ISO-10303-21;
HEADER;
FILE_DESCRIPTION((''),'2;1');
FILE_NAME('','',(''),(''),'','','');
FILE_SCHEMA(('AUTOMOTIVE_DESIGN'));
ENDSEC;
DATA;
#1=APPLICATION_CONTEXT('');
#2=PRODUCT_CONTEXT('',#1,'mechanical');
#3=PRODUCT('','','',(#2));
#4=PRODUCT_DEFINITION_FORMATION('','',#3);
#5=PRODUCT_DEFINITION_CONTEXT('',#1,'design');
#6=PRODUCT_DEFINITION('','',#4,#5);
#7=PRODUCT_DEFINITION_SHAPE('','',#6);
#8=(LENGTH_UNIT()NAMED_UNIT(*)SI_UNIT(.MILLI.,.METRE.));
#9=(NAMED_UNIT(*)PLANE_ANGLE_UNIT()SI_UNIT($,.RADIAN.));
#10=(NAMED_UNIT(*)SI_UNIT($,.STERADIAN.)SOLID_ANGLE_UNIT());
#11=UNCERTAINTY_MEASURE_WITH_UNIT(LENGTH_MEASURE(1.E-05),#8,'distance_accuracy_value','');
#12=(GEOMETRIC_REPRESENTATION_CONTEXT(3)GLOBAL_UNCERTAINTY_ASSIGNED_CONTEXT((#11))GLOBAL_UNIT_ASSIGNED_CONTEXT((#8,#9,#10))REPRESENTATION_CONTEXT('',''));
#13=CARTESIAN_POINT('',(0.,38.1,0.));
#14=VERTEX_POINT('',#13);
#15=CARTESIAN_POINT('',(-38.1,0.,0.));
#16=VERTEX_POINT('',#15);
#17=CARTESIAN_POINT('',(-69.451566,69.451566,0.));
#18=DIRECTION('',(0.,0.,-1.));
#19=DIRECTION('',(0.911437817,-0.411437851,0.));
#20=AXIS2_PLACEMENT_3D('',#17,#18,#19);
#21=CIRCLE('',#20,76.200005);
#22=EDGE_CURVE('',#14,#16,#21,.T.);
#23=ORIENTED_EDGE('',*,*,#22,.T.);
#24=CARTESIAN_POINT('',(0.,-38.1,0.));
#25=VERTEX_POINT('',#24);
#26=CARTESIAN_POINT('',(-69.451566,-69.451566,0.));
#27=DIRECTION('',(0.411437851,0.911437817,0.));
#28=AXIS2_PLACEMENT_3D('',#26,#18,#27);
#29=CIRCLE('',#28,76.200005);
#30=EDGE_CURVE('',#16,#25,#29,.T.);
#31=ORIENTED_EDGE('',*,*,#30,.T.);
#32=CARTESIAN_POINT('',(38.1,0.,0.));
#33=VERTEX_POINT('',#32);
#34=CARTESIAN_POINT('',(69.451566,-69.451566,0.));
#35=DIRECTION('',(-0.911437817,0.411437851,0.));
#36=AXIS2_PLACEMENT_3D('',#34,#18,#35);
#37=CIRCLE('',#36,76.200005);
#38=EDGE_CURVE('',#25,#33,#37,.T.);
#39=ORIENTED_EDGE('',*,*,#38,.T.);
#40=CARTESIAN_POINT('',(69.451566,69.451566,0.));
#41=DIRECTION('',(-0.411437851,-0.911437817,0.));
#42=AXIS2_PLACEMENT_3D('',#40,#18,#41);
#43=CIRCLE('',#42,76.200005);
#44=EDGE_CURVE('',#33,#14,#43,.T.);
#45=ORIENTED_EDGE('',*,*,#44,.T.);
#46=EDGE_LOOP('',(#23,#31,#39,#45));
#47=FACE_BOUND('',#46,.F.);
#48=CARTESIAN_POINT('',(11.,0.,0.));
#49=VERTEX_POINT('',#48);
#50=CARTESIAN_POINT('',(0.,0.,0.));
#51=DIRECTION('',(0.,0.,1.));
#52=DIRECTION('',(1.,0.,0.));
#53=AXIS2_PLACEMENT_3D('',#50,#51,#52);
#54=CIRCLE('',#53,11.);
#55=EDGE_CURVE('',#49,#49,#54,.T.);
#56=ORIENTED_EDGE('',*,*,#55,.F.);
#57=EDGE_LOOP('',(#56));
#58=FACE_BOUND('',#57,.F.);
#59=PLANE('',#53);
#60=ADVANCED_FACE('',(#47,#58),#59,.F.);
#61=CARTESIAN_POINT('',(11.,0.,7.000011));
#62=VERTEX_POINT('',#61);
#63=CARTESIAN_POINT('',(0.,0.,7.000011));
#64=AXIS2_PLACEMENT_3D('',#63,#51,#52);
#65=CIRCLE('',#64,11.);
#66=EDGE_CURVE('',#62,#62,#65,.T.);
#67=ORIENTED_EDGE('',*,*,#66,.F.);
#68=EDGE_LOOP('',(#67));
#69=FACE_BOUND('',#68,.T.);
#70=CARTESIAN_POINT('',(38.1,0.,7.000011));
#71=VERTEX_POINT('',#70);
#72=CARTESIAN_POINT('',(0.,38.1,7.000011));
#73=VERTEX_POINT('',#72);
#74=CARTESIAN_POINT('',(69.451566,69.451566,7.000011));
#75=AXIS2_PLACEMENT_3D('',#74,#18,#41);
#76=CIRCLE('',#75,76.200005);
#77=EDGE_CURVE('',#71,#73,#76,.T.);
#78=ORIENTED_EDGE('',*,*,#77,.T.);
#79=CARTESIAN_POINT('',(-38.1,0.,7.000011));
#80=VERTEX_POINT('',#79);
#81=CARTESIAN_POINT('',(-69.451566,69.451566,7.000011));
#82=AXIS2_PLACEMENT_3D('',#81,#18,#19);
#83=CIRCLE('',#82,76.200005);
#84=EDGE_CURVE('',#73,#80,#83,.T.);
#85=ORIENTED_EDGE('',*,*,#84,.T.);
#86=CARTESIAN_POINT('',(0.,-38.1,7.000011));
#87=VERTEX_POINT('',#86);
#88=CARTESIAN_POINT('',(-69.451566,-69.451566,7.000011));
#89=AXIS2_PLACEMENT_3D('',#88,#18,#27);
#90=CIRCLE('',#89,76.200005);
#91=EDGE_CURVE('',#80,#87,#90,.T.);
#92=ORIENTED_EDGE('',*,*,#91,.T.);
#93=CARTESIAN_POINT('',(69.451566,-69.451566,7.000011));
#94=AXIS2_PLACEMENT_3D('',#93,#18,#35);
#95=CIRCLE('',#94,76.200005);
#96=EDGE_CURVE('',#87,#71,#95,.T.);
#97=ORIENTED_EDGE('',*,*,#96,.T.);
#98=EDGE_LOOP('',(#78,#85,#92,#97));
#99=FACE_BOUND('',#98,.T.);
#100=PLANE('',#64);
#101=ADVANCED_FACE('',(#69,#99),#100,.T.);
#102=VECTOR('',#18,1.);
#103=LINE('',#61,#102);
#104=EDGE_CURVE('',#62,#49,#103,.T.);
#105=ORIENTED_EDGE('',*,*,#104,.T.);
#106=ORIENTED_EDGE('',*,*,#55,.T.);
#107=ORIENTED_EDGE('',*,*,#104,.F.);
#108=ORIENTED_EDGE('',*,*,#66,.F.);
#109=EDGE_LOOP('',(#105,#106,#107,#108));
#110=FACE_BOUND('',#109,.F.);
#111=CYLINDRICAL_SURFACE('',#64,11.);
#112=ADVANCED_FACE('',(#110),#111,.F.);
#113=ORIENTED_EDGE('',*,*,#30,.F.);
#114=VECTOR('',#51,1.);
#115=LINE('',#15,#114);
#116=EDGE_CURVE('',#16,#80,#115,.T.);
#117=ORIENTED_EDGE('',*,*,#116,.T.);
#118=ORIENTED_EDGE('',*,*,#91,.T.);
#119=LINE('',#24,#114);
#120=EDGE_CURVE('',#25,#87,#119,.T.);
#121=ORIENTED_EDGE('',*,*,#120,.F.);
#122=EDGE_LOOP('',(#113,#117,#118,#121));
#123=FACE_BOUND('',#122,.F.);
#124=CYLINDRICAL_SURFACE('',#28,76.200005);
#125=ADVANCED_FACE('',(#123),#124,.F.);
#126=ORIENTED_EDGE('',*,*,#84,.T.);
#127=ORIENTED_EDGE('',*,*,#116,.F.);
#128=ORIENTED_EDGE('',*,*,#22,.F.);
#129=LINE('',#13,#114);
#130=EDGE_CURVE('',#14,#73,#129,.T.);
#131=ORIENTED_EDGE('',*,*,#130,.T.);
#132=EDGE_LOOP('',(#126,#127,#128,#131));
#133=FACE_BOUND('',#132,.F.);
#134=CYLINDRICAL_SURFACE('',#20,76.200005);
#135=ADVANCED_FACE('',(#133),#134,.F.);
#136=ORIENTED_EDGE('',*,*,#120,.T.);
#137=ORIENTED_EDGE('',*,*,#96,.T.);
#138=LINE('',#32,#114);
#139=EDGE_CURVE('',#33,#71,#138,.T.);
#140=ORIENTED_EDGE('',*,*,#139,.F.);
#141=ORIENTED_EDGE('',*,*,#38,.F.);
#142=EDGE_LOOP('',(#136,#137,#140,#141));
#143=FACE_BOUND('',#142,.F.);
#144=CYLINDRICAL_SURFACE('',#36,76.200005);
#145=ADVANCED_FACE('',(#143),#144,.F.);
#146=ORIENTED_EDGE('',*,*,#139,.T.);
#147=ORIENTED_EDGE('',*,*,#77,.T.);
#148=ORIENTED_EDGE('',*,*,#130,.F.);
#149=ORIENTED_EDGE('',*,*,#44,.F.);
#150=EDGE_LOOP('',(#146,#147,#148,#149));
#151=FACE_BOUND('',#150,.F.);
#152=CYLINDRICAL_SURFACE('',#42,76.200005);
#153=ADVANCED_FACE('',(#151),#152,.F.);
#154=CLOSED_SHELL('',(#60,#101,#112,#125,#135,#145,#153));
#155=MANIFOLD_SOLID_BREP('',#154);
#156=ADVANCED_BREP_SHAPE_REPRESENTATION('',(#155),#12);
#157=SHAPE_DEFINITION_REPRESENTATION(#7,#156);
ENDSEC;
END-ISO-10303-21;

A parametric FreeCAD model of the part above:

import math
import FreeCAD as App
import Part
import Sketcher
Q = App.Units.Quantity

doc = App.newDocument("Part")
body = doc.addObject("PartDesign::Body", "Body")

sketch1 = body.newObject("Sketcher::SketchObject", "Sketch")
sketch1.AttachmentSupport = (doc.getObject("XY_Plane"), [""])
sketch1.MapMode = "FlatFace"
sketch1.addGeometry([
    Part.ArcOfCircle(Part.Circle(App.Vector(69.451566, -69.451566, 0), App.Vector(0, 0, 1), 76.200005), math.radians(114.29519), math.radians(155.70481)),
    Part.ArcOfCircle(Part.Circle(App.Vector(69.451566, 69.451566, 0), App.Vector(0, 0, 1), 76.200005), math.radians(-155.70481), math.radians(-114.29519)),
    Part.ArcOfCircle(Part.Circle(App.Vector(-69.451566, 69.451566, 0), App.Vector(0, 0, 1), 76.200005), math.radians(-65.70481), math.radians(-24.29519)),
    Part.ArcOfCircle(Part.Circle(App.Vector(-69.451566, -69.451566, 0), App.Vector(0, 0, 1), 76.200005), math.radians(24.29519), math.radians(65.70481)),
], False)
sketch1.addConstraint([
    Sketcher.Constraint("Coincident", 0, 1, 1, 2),
    Sketcher.Constraint("Coincident", 1, 1, 2, 2),
    Sketcher.Constraint("Coincident", 2, 1, 3, 2),
    Sketcher.Constraint("Coincident", 3, 1, 0, 2),
    Sketcher.Constraint("Equal", 0, 1),
    Sketcher.Constraint("Equal", 1, 2),
    Sketcher.Constraint("Equal", 2, 3),
    Sketcher.Constraint("Symmetric", 0, 3, 2, 3, -1, 1),
    Sketcher.Constraint("Symmetric", 1, 3, 3, 3, -1, 1),
    Sketcher.Constraint("Symmetric", 1, 3, 2, 3, -2),
    Sketcher.Constraint("DistanceX", -1, 1, 0, 1, Q("38.1 mm")),
    Sketcher.Constraint("DistanceY", -1, 1, 1, 1, Q("38.1 mm")),
    Sketcher.Constraint("Radius", 0, Q("76.200005 mm")),
])
pad1 = body.newObject("PartDesign::Pad", "Pad")
pad1.Profile = sketch1
pad1.Length = 7.000011

sketch2 = body.newObject("Sketcher::SketchObject", "Sketch001")
sketch2.AttachmentSupport = (doc.getObject("XY_Plane"), [""])
sketch2.MapMode = "FlatFace"
sketch2.AttachmentOffset = App.Placement(App.Vector(0, 0, 7.000011), App.Rotation())
sketch2.addGeometry(Part.Circle(App.Vector(0, 0, 0), App.Vector(0, 0, 1), 11), False)
sketch2.addConstraint([
    Sketcher.Constraint("Coincident", 0, 3, -1, 1),
    Sketcher.Constraint("Diameter", 0, Q("22 mm")),
])
pocket1 = body.newObject("PartDesign::Pocket", "Pocket")
pocket1.Profile = sketch2
pocket1.Type = "ThroughAll"

doc.recompute()
